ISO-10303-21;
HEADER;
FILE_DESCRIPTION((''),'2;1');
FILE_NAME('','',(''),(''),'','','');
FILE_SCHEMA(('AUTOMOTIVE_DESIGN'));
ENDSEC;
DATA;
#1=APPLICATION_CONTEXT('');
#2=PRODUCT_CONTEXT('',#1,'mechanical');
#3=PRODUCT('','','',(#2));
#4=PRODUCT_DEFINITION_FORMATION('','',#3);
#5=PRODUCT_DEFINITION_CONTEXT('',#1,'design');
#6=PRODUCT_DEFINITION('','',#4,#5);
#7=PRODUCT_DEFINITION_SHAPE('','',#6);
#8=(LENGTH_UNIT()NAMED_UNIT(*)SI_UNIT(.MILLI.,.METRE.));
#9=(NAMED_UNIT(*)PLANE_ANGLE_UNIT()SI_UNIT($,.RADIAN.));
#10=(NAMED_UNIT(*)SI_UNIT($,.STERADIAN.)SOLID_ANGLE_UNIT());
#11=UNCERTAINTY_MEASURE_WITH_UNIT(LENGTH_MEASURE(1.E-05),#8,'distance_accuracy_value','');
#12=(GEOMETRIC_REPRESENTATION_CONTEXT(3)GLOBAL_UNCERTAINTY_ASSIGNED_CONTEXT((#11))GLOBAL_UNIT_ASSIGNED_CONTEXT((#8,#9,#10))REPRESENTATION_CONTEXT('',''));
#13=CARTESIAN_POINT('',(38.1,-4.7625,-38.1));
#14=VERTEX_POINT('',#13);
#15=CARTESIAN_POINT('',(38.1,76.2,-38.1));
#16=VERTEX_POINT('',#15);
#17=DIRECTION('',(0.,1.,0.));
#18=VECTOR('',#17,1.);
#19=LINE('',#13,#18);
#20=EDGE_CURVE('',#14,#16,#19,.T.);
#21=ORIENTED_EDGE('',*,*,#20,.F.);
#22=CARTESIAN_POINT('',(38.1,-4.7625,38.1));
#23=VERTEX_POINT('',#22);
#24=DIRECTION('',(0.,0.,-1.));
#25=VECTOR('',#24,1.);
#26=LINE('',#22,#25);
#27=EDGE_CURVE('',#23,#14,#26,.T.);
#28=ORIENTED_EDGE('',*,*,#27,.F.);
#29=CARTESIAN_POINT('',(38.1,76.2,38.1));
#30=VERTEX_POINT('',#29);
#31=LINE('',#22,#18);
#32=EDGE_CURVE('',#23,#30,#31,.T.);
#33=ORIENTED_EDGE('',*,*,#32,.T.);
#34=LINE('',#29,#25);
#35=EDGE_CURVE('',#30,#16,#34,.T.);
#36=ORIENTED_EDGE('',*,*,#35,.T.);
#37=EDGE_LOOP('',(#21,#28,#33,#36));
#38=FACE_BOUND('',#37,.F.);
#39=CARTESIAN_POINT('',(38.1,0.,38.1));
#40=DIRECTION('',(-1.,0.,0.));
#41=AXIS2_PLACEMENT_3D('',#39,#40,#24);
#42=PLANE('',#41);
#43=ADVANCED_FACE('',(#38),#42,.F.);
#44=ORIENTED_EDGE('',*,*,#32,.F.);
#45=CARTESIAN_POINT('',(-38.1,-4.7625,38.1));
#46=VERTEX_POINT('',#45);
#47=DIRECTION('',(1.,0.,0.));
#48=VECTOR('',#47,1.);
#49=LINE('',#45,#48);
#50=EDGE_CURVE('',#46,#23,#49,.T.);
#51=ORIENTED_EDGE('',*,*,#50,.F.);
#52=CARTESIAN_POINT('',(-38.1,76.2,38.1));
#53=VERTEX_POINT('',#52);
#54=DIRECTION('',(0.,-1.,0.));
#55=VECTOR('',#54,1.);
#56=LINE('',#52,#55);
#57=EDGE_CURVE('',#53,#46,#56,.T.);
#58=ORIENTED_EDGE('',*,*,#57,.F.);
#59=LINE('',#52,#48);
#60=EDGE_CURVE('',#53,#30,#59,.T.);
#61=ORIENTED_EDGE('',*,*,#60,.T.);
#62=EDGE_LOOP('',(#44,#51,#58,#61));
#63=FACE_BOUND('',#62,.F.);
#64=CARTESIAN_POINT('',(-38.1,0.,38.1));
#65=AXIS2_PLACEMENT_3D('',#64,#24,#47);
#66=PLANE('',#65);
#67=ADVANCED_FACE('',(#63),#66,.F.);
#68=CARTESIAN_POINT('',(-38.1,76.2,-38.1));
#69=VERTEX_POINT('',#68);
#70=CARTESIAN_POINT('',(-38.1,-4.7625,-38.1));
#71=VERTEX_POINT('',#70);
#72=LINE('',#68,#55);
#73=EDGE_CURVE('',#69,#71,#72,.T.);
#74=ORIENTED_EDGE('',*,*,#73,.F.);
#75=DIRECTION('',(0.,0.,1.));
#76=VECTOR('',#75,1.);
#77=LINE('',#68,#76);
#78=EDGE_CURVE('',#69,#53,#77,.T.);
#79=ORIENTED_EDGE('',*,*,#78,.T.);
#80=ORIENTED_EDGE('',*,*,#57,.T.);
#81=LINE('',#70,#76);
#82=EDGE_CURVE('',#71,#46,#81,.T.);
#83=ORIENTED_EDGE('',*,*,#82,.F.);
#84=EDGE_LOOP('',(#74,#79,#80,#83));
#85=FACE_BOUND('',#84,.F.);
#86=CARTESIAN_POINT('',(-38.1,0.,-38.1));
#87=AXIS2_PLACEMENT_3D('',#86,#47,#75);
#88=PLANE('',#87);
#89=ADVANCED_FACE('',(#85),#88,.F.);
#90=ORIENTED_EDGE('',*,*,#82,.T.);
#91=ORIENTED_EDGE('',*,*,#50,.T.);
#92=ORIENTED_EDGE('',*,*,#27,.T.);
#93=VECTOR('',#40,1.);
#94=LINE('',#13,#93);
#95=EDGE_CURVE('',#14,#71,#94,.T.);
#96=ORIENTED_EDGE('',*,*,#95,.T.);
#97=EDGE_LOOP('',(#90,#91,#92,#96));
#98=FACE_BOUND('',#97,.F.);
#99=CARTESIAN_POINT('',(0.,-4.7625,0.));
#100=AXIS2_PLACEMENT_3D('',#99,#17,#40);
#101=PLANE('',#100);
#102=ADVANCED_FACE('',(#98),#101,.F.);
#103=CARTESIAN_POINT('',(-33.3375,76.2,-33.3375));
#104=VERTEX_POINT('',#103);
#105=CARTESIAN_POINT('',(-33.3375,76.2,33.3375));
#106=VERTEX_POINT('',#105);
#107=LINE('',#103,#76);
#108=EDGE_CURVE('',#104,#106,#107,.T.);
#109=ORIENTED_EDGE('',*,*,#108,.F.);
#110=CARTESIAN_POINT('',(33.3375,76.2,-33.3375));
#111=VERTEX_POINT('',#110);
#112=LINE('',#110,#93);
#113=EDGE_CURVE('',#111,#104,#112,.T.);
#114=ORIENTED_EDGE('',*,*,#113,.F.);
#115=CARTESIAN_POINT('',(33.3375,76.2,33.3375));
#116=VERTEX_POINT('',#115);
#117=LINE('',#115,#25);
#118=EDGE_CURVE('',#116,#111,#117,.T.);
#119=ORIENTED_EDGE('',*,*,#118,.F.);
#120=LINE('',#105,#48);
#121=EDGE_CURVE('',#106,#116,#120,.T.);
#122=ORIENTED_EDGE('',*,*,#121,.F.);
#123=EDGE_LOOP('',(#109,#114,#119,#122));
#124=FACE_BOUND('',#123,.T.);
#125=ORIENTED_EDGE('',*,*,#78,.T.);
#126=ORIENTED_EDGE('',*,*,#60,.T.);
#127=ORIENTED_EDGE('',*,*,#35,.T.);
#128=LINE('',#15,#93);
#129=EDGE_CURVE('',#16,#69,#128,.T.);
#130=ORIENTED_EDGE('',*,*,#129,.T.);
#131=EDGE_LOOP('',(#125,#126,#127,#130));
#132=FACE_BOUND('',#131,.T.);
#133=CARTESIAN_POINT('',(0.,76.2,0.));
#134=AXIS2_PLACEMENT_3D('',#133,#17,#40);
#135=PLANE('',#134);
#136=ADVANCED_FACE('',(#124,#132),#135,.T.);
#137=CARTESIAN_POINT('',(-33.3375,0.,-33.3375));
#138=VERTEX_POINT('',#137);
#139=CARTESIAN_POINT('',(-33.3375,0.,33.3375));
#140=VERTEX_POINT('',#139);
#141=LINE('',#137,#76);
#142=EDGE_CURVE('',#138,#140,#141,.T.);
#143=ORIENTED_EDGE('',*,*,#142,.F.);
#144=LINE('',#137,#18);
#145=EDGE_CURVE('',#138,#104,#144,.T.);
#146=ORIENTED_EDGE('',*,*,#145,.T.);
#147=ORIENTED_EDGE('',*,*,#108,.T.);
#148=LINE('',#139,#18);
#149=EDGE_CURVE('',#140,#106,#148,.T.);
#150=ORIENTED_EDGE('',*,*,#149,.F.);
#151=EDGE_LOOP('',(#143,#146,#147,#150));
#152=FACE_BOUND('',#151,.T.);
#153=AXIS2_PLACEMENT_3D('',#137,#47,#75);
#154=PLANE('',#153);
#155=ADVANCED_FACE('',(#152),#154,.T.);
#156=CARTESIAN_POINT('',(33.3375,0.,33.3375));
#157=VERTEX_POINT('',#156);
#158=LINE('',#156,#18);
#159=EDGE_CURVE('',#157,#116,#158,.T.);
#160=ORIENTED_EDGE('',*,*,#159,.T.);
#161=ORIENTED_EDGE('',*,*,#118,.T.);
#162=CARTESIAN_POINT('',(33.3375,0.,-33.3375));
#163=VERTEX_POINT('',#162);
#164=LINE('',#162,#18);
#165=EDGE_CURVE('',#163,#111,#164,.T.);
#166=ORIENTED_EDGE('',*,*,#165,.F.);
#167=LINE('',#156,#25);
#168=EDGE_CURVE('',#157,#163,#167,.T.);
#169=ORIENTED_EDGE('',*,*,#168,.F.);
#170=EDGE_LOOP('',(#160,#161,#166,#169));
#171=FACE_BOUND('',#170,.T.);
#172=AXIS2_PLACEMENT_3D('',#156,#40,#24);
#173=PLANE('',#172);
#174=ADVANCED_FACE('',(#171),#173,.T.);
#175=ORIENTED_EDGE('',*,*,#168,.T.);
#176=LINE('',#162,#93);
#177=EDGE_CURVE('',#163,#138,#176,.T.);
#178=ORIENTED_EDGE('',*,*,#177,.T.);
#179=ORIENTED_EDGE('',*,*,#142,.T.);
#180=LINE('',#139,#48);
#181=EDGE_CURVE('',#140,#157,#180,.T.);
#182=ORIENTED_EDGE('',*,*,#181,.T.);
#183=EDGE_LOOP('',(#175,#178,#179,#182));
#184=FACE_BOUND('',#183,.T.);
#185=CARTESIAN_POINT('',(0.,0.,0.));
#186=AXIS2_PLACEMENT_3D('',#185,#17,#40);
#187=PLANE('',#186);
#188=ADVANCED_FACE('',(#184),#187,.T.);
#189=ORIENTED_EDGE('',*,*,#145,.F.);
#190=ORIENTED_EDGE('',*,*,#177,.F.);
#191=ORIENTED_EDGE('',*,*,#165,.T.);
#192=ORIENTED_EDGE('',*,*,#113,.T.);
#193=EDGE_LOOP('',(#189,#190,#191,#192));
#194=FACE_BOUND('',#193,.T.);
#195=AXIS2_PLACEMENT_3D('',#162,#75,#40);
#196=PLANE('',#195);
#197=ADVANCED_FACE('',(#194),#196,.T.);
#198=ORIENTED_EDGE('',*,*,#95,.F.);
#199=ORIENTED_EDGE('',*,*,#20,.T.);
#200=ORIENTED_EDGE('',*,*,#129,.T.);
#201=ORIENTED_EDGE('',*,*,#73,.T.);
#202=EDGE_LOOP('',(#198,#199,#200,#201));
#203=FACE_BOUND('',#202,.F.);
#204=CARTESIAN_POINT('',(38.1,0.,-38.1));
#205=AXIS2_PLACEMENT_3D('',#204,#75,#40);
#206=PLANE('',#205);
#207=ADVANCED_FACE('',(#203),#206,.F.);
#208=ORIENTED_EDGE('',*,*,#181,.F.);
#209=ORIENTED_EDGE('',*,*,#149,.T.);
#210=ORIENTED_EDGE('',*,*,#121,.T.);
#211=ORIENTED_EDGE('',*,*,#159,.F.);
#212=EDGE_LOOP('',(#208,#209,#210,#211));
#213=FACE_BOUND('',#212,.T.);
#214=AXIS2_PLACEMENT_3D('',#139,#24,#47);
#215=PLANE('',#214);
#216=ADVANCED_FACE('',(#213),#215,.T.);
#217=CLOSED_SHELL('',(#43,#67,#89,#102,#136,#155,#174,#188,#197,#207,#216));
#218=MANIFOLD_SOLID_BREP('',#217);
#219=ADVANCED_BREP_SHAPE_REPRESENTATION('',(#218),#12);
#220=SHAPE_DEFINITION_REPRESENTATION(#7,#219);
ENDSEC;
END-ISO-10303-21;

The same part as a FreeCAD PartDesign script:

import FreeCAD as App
import Part
import Sketcher
from FreeCAD import Vector
Q = App.Units.Quantity


def add_polygon(sketch, points):
    """Adds a closed chain of lines whose ends are joined by coincident constraints."""
    first, n = sketch.GeometryCount, len(points)
    for a, b in zip(points, points[1:] + points[:1]):
        sketch.addGeometry(Part.LineSegment(App.Vector(*a, 0), App.Vector(*b, 0)), False)
    for i in range(n):
        sketch.addConstraint(Sketcher.Constraint("Coincident", first + i, 2, first + (i + 1) % n, 1))

doc = App.newDocument("Part")
body = doc.addObject("PartDesign::Body", "Body")

# Sketch on XZ plane
sketch1 = body.newObject("Sketcher::SketchObject", "Sketch")
sketch1.AttachmentSupport = (doc.getObject("XZ_Plane"), [""])
sketch1.MapMode = "FlatFace"
add_polygon(sketch1, [(-38, 38), (38, 38), (38, -38), (-38, -38)])  # lines 0-3
sketch1.addConstraint(Sketcher.Constraint("Horizontal", 0))
sketch1.addConstraint(Sketcher.Constraint("Vertical", 1))
sketch1.addConstraint(Sketcher.Constraint("Horizontal", 2))
sketch1.addConstraint(Sketcher.Constraint("Vertical", 3))
sketch1.addConstraint(Sketcher.Constraint("Symmetric", 0, 2, 2, 2, -1, 1))
sketch1.addConstraint(Sketcher.Constraint("Equal", 2, 1))
sketch1.addConstraint(Sketcher.Constraint("DistanceX", 0, 1, 0, 2, Q("3 in")))
pad1 = body.newObject("PartDesign::Pad", "Pad")
pad1.Profile = sketch1
pad1.Length = Q("0.1875 in")

# Sketch on XZ plane
sketch2 = body.newObject("Sketcher::SketchObject", "Sketch001")
sketch2.AttachmentSupport = (doc.getObject("XZ_Plane"), [""])
sketch2.MapMode = "FlatFace"
add_polygon(sketch2, [(-38, 38), (38, 38), (38, -38), (-38, -38)])  # lines 0-3
add_polygon(sketch2, [(33, -33), (33, 33), (-33, 33), (-33, -33)])  # lines 4-7
sketch2.addConstraint(Sketcher.Constraint("Horizontal", 0))
sketch2.addConstraint(Sketcher.Constraint("Vertical", 1))
sketch2.addConstraint(Sketcher.Constraint("Horizontal", 2))
sketch2.addConstraint(Sketcher.Constraint("Vertical", 3))
sketch2.addConstraint(Sketcher.Constraint("Vertical", 4))
sketch2.addConstraint(Sketcher.Constraint("Horizontal", 5))
sketch2.addConstraint(Sketcher.Constraint("Vertical", 6))
sketch2.addConstraint(Sketcher.Constraint("Horizontal", 7))
sketch2.addConstraint(Sketcher.Constraint("Symmetric", 0, 2, 2, 2, -1, 1))
sketch2.addConstraint(Sketcher.Constraint("Symmetric", 4, 2, 6, 2, -1, 1))
sketch2.addConstraint(Sketcher.Constraint("Equal", 2, 1))
sketch2.addConstraint(Sketcher.Constraint("Equal", 7, 4))
sketch2.addConstraint(Sketcher.Constraint("DistanceX", 0, 1, 0, 2, Q("3 in")))
sketch2.addConstraint(Sketcher.Constraint("DistanceX", 4, 2, 0, 2, Q("0.1875 in")))
pad2 = body.newObject("PartDesign::Pad", "Pad001")
pad2.Profile = sketch2
pad2.Length = Q("3 in")
pad2.Reversed = True

doc.recompute()
